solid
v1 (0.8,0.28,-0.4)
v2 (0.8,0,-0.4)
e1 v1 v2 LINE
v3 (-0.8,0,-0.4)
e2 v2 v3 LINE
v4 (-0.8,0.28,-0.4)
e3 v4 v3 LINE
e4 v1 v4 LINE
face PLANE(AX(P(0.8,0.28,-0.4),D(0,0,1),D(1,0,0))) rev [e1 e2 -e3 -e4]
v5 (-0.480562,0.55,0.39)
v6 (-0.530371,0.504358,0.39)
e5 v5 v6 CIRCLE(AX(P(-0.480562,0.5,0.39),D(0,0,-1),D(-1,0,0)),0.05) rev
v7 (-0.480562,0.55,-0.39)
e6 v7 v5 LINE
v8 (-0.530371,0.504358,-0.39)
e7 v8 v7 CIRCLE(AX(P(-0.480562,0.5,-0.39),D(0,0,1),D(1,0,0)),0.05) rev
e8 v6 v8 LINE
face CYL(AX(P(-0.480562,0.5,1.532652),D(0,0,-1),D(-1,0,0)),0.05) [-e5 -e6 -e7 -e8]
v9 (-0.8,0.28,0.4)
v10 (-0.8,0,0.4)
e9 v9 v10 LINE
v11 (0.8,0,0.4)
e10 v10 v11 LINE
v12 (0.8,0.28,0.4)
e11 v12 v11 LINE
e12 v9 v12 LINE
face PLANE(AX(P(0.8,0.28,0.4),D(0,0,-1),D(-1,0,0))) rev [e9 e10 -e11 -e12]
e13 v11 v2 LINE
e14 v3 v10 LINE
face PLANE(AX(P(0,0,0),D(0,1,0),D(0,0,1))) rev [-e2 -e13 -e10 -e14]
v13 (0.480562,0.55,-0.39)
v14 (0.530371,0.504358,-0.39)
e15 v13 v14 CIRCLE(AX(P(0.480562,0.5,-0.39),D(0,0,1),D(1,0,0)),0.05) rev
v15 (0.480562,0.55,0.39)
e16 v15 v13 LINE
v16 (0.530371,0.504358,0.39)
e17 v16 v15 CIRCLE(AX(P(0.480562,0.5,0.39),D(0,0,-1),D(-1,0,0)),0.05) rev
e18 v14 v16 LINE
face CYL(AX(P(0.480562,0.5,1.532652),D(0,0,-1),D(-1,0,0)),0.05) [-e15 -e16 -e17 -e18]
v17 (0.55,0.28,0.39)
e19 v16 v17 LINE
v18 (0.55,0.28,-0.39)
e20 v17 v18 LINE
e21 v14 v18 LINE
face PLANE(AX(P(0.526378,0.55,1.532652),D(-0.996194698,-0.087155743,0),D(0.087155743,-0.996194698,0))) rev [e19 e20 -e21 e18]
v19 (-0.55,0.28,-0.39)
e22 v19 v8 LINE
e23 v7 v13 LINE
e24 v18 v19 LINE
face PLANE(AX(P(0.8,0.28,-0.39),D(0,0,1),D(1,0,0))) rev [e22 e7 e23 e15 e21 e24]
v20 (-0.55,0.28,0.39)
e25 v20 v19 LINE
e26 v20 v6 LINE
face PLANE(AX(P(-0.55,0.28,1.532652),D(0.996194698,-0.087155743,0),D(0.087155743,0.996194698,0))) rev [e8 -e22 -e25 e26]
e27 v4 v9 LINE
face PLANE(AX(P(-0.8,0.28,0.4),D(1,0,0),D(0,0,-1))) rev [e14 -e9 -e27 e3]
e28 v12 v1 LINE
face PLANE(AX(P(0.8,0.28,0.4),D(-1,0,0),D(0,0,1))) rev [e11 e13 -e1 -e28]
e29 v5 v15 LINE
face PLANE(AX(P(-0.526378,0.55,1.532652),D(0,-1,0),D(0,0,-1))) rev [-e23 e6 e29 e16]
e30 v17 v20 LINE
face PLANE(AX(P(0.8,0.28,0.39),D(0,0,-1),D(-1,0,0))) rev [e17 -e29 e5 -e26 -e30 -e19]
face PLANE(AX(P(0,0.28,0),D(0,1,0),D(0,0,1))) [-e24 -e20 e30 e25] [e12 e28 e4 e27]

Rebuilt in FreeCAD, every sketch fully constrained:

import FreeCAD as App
import Part
import Sketcher
Q = App.Units.Quantity


def edges_at(feature, points):
    """Names of the edges that pass closest to the given points."""
    edges = feature.Shape.Edges
    near = lambda p: min(range(len(edges)), key=lambda i: edges[i].distToShape(Part.Vertex(*p))[0])
    return sorted({f"Edge{near(p) + 1}" for p in points})


def add_polygon(sketch, points):
    """Adds a closed chain of lines whose ends are joined by coincident constraints."""
    first, n = sketch.GeometryCount, len(points)
    for a, b in zip(points, points[1:] + points[:1]):
        sketch.addGeometry(Part.LineSegment(App.Vector(*a, 0), App.Vector(*b, 0)), False)
    for i in range(n):
        sketch.addConstraint(Sketcher.Constraint("Coincident", first + i, 2, first + (i + 1) % n, 1))

doc = App.newDocument("Part")
params = doc.addObject("Spreadsheet::Sheet", "Params")
for row, (alias, value) in enumerate([
    ("sketch1_width", "1.6 mm"),
    ("sketch1_height", "0.8 mm"),
    ("pad1_length", "0.28 mm"),
    ("sketch2_width", "1.1 mm"),
    ("pad2_length", "0.39 mm"),
    ("pad2_length2", "0.39 mm"),
    ("fillet_radius", "0.05 mm"),
], start=1):
    params.set(f"A{row}", alias)
    params.set(f"B{row}", "=" + value)
    params.setAlias(f"B{row}", alias)

body = doc.addObject("PartDesign::Body", "Body")

sketch1 = body.newObject("Sketcher::SketchObject", "Sketch")
sketch1.AttachmentSupport = (doc.getObject("XZ_Plane"), [""])
sketch1.MapMode = "FlatFace"
add_polygon(sketch1, [(-0.8, -0.4), (-0.8, 0.4), (0.8, 0.4), (0.8, -0.4)])
sketch1.addConstraint(Sketcher.Constraint("Vertical", 0))
sketch1.addConstraint(Sketcher.Constraint("Horizontal", 1))
sketch1.addConstraint(Sketcher.Constraint("Vertical", 2))
sketch1.addConstraint(Sketcher.Constraint("Horizontal", 3))
sketch1.addConstraint(Sketcher.Constraint("Symmetric", 0, 2, 2, 2, -1, 1))
sketch1.addConstraint(Sketcher.Constraint("DistanceX", 1, 1, 1, 2, Q("1.6 mm")))
sketch1.addConstraint(Sketcher.Constraint("DistanceY", 0, 1, 0, 2, Q("0.8 mm")))
sketch1.setExpression("Constraints[9]", "Params.sketch1_width")
sketch1.setExpression("Constraints[10]", "Params.sketch1_height")
pad1 = body.newObject("PartDesign::Pad", "Pad")
pad1.Profile = sketch1
pad1.setExpression("Length", "Params.pad1_length")
pad1.Reversed = True

sketch2 = body.newObject("Sketcher::SketchObject", "Sketch001")
sketch2.AttachmentSupport = (doc.getObject("XY_Plane"), [""])
sketch2.MapMode = "FlatFace"
add_polygon(sketch2, [(-0.53, 0.55), (-0.55, 0.28), (0.55, 0.28), (0.53, 0.55)])
sketch2.addConstraint(Sketcher.Constraint("Horizontal", 1))
sketch2.addConstraint(Sketcher.Constraint("Horizontal", 3))
sketch2.addConstraint(Sketcher.Constraint("Equal", 0, 2))
sketch2.addConstraint(Sketcher.Constraint("Angle", 0, Q("-95 deg")))
sketch2.addConstraint(Sketcher.Constraint("DistanceX", 1, 1, 1, 2, Q("1.1 mm")))
sketch2.addConstraint(Sketcher.Constraint("DistanceX", 0, 2, -1, 1, Q("0.55 mm")))
sketch2.addConstraint(Sketcher.Constraint("DistanceY", -1, 1, 0, 2, Q("0.28 mm")))
sketch2.addConstraint(Sketcher.Constraint("DistanceY", -1, 1, 2, 2, Q("0.55 mm")))
sketch2.setExpression("Constraints[8]", "Params.sketch2_width")
pad2 = body.newObject("PartDesign::Pad", "Pad001")
pad2.Profile = sketch2
pad2.Type = "TwoLengths"
pad2.setExpression("Length", "Params.pad2_length")
pad2.setExpression("Length2", "Params.pad2_length2")
doc.recompute()

fillet = body.newObject("PartDesign::Fillet", "Fillet")
fillet.Base = (pad2, edges_at(pad2, [(-0.526, 0.55, 0), (0.526, 0.55, 0)]))
fillet.setExpression("Radius", "Params.fillet_radius")

doc.recompute()
